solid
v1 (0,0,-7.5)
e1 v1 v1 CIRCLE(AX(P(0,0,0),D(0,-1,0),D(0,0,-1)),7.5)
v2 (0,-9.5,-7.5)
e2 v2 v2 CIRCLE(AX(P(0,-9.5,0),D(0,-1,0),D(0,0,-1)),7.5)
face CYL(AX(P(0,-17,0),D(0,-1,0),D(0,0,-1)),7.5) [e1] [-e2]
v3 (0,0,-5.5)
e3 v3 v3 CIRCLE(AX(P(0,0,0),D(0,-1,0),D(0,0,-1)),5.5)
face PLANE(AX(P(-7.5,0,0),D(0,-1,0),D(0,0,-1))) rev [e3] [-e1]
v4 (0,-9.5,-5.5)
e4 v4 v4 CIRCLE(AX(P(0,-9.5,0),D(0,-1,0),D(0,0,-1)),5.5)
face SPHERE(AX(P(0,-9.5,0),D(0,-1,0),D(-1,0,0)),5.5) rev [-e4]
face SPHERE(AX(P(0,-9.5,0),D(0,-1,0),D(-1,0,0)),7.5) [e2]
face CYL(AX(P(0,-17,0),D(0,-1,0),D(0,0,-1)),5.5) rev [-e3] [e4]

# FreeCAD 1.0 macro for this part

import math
import FreeCAD as App
import Part
import Sketcher

V = App.Vector

doc = App.newDocument("Part")
body = doc.addObject("PartDesign::Body", "Body")

# Sketch on XY plane
sketch1 = doc.addObject("Sketcher::SketchObject", "Sketch")
body.addObject(sketch1)
sketch1.AttachmentSupport = (doc.XY_Plane, [""])
sketch1.MapMode = "FlatFace"
sketch1.addGeometry(Part.LineSegment(V(-7.5, 0, 0), V(-7.5, -9.5, 0)), False)
sketch1.addGeometry(Part.ArcOfCircle(Part.Circle(V(0, -9.5, 0), V(0, 0, 1), 7.5), math.radians(180), math.radians(270)), False)
sketch1.addGeometry(Part.LineSegment(V(0, -17, 0), V(0, -15, 0)), False)
sketch1.addGeometry(Part.ArcOfCircle(Part.Circle(V(0, -9.5, 0), V(0, 0, 1), 5.5), math.radians(180), math.radians(270)), False)
sketch1.addGeometry(Part.LineSegment(V(-5.5, -9.5, 0), V(-5.5, 0, 0)), False)
sketch1.addGeometry(Part.LineSegment(V(-5.5, 0, 0), V(-7.5, 0, 0)), False)
sketch1.addConstraint(Sketcher.Constraint("Tangent", 0, 2, 1, 1))
sketch1.addConstraint(Sketcher.Constraint("Coincident", 1, 2, 2, 1))
sketch1.addConstraint(Sketcher.Constraint("Coincident", 2, 2, 3, 2))
sketch1.addConstraint(Sketcher.Constraint("Tangent", 3, 1, 4, 1))
sketch1.addConstraint(Sketcher.Constraint("Coincident", 4, 2, 5, 1))
sketch1.addConstraint(Sketcher.Constraint("Coincident", 5, 2, 0, 1))
sketch1.addConstraint(Sketcher.Constraint("Vertical", 0))
sketch1.addConstraint(Sketcher.Constraint("Vertical", 2))
sketch1.addConstraint(Sketcher.Constraint("Vertical", 4))
sketch1.addConstraint(Sketcher.Constraint("Horizontal", 5))
sketch1.addConstraint(Sketcher.Constraint("Coincident", 3, 3, 1, 3))
sketch1.addConstraint(Sketcher.Constraint("PointOnObject", 1, 3, -2))
sketch1.addConstraint(Sketcher.Constraint("PointOnObject", 1, 2, -2))
sketch1.addConstraint(Sketcher.Constraint("PointOnObject", 4, 2, -1))
sketch1.addConstraint(Sketcher.Constraint("Radius", 1, 7.5))
sketch1.addConstraint(Sketcher.Constraint("Radius", 3, 5.5))
sketch1.addConstraint(Sketcher.Constraint("DistanceY", 0, 2, 0, 1, 9.5))
revolution = doc.addObject("PartDesign::Revolution", "Revolution")
body.addObject(revolution)
revolution.Profile = sketch1
revolution.ReferenceAxis = (sketch1, ["V_Axis"])
revolution.Angle = 360

doc.recompute()
